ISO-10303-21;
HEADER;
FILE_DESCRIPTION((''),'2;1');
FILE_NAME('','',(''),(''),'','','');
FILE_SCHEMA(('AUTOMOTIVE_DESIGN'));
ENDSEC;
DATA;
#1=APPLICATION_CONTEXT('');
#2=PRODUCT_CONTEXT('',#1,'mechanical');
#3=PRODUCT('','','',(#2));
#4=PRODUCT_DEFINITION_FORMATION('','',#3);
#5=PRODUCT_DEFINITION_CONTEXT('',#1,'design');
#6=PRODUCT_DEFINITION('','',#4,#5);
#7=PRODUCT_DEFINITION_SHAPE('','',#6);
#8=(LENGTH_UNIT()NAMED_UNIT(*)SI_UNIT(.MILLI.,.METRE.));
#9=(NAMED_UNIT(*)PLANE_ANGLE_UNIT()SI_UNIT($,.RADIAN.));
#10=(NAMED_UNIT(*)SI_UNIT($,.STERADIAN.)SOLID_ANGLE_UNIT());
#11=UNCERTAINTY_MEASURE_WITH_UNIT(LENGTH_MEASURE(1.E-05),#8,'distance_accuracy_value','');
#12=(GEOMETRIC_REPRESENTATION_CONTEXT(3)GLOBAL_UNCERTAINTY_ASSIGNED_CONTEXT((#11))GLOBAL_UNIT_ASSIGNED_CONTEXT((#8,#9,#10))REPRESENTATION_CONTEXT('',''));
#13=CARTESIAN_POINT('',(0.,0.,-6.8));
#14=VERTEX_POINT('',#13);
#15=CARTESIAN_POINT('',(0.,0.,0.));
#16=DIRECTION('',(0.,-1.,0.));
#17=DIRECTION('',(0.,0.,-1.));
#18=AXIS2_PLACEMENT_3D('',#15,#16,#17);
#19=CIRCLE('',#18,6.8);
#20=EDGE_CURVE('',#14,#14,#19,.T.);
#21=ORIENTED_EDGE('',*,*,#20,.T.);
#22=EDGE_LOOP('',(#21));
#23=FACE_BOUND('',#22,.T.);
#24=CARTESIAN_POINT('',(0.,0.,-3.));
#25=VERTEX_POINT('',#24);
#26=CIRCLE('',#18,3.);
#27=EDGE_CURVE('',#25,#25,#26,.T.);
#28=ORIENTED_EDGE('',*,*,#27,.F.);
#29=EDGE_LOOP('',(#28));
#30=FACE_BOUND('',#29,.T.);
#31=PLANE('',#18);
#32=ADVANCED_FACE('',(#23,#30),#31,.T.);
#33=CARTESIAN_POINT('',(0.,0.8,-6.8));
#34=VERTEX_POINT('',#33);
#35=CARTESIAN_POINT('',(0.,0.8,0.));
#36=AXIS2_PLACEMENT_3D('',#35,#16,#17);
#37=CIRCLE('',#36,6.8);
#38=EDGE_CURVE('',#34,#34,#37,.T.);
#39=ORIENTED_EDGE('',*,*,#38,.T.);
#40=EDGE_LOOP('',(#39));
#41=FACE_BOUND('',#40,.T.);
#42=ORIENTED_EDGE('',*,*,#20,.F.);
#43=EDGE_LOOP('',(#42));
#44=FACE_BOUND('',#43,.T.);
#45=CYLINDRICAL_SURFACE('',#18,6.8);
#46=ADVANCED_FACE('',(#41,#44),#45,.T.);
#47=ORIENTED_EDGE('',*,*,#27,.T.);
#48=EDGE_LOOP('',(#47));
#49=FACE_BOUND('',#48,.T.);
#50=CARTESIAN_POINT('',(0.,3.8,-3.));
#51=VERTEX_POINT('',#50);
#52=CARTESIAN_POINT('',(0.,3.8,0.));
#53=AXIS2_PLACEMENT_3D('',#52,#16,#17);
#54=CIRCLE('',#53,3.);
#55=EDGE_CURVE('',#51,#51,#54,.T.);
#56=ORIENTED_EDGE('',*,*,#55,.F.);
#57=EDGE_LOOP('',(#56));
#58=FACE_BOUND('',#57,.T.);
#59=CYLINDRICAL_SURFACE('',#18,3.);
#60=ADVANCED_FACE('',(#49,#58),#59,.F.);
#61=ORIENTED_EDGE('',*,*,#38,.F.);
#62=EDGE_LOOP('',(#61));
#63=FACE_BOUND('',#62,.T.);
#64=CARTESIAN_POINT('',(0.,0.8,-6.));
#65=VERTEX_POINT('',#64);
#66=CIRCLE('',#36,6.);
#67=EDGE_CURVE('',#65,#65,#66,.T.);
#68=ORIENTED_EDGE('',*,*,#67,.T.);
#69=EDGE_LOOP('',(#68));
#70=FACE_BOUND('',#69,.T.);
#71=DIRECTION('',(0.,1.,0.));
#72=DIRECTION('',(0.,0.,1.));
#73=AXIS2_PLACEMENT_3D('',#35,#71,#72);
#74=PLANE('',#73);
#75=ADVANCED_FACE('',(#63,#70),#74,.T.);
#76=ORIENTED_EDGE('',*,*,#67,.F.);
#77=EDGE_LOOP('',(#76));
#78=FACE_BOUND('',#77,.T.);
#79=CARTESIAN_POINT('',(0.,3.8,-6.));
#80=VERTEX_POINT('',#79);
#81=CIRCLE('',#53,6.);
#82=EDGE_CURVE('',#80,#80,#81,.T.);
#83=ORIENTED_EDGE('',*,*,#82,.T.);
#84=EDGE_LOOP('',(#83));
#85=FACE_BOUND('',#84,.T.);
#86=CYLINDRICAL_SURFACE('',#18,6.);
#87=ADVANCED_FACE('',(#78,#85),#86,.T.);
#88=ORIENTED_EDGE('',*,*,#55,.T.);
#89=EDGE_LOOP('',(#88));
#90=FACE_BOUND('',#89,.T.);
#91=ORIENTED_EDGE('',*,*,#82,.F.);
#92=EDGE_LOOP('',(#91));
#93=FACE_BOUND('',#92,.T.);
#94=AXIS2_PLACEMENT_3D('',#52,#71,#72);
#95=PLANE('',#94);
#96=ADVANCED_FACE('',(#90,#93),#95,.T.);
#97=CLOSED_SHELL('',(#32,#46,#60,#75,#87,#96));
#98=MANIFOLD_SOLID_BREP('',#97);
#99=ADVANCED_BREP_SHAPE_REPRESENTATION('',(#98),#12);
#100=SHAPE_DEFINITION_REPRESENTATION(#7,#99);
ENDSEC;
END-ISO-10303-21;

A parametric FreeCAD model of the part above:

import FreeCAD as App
import Part
import Sketcher
from FreeCAD import Vector
Q = App.Units.Quantity


def add_polygon(sketch, points):
    """Adds a closed chain of lines whose ends are joined by coincident constraints."""
    first, n = sketch.GeometryCount, len(points)
    for a, b in zip(points, points[1:] + points[:1]):
        sketch.addGeometry(Part.LineSegment(App.Vector(*a, 0), App.Vector(*b, 0)), False)
    for i in range(n):
        sketch.addConstraint(Sketcher.Constraint("Coincident", first + i, 2, first + (i + 1) % n, 1))

doc = App.newDocument("Part")
body = doc.addObject("PartDesign::Body", "Body")

sketch1 = body.newObject("Sketcher::SketchObject", "Sketch")
sketch1.AttachmentSupport = (doc.getObject("XY_Plane"), [""])
sketch1.MapMode = "FlatFace"
add_polygon(sketch1, [(-3, 0), (-3, 3.8), (-6, 3.8), (-6, 0.8), (-6.8, 0.8), (-6.8, 0)])
sketch1.addConstraint([
    Sketcher.Constraint("Vertical", 0),
    Sketcher.Constraint("Horizontal", 1),
    Sketcher.Constraint("Vertical", 2),
    Sketcher.Constraint("Horizontal", 3),
    Sketcher.Constraint("Vertical", 4),
    Sketcher.Constraint("Horizontal", 5),
    Sketcher.Constraint("PointOnObject", 4, 2, -1),
    Sketcher.Constraint("Equal", 5, 0),
    Sketcher.Constraint("Equal", 1, 2),
    Sketcher.Constraint("DistanceX", 1, 2, 1, 1, Q("3 mm")),
    Sketcher.Constraint("DistanceX", 3, 2, 3, 1, Q("0.8 mm")),
    Sketcher.Constraint("DistanceX", 0, 2, -1, 1, Q("3 mm")),
])
revolution = body.newObject("PartDesign::Revolution", "Revolution")
revolution.Profile = sketch1
revolution.ReferenceAxis = (sketch1, ["V_Axis"])
revolution.Angle = 360

doc.recompute()
